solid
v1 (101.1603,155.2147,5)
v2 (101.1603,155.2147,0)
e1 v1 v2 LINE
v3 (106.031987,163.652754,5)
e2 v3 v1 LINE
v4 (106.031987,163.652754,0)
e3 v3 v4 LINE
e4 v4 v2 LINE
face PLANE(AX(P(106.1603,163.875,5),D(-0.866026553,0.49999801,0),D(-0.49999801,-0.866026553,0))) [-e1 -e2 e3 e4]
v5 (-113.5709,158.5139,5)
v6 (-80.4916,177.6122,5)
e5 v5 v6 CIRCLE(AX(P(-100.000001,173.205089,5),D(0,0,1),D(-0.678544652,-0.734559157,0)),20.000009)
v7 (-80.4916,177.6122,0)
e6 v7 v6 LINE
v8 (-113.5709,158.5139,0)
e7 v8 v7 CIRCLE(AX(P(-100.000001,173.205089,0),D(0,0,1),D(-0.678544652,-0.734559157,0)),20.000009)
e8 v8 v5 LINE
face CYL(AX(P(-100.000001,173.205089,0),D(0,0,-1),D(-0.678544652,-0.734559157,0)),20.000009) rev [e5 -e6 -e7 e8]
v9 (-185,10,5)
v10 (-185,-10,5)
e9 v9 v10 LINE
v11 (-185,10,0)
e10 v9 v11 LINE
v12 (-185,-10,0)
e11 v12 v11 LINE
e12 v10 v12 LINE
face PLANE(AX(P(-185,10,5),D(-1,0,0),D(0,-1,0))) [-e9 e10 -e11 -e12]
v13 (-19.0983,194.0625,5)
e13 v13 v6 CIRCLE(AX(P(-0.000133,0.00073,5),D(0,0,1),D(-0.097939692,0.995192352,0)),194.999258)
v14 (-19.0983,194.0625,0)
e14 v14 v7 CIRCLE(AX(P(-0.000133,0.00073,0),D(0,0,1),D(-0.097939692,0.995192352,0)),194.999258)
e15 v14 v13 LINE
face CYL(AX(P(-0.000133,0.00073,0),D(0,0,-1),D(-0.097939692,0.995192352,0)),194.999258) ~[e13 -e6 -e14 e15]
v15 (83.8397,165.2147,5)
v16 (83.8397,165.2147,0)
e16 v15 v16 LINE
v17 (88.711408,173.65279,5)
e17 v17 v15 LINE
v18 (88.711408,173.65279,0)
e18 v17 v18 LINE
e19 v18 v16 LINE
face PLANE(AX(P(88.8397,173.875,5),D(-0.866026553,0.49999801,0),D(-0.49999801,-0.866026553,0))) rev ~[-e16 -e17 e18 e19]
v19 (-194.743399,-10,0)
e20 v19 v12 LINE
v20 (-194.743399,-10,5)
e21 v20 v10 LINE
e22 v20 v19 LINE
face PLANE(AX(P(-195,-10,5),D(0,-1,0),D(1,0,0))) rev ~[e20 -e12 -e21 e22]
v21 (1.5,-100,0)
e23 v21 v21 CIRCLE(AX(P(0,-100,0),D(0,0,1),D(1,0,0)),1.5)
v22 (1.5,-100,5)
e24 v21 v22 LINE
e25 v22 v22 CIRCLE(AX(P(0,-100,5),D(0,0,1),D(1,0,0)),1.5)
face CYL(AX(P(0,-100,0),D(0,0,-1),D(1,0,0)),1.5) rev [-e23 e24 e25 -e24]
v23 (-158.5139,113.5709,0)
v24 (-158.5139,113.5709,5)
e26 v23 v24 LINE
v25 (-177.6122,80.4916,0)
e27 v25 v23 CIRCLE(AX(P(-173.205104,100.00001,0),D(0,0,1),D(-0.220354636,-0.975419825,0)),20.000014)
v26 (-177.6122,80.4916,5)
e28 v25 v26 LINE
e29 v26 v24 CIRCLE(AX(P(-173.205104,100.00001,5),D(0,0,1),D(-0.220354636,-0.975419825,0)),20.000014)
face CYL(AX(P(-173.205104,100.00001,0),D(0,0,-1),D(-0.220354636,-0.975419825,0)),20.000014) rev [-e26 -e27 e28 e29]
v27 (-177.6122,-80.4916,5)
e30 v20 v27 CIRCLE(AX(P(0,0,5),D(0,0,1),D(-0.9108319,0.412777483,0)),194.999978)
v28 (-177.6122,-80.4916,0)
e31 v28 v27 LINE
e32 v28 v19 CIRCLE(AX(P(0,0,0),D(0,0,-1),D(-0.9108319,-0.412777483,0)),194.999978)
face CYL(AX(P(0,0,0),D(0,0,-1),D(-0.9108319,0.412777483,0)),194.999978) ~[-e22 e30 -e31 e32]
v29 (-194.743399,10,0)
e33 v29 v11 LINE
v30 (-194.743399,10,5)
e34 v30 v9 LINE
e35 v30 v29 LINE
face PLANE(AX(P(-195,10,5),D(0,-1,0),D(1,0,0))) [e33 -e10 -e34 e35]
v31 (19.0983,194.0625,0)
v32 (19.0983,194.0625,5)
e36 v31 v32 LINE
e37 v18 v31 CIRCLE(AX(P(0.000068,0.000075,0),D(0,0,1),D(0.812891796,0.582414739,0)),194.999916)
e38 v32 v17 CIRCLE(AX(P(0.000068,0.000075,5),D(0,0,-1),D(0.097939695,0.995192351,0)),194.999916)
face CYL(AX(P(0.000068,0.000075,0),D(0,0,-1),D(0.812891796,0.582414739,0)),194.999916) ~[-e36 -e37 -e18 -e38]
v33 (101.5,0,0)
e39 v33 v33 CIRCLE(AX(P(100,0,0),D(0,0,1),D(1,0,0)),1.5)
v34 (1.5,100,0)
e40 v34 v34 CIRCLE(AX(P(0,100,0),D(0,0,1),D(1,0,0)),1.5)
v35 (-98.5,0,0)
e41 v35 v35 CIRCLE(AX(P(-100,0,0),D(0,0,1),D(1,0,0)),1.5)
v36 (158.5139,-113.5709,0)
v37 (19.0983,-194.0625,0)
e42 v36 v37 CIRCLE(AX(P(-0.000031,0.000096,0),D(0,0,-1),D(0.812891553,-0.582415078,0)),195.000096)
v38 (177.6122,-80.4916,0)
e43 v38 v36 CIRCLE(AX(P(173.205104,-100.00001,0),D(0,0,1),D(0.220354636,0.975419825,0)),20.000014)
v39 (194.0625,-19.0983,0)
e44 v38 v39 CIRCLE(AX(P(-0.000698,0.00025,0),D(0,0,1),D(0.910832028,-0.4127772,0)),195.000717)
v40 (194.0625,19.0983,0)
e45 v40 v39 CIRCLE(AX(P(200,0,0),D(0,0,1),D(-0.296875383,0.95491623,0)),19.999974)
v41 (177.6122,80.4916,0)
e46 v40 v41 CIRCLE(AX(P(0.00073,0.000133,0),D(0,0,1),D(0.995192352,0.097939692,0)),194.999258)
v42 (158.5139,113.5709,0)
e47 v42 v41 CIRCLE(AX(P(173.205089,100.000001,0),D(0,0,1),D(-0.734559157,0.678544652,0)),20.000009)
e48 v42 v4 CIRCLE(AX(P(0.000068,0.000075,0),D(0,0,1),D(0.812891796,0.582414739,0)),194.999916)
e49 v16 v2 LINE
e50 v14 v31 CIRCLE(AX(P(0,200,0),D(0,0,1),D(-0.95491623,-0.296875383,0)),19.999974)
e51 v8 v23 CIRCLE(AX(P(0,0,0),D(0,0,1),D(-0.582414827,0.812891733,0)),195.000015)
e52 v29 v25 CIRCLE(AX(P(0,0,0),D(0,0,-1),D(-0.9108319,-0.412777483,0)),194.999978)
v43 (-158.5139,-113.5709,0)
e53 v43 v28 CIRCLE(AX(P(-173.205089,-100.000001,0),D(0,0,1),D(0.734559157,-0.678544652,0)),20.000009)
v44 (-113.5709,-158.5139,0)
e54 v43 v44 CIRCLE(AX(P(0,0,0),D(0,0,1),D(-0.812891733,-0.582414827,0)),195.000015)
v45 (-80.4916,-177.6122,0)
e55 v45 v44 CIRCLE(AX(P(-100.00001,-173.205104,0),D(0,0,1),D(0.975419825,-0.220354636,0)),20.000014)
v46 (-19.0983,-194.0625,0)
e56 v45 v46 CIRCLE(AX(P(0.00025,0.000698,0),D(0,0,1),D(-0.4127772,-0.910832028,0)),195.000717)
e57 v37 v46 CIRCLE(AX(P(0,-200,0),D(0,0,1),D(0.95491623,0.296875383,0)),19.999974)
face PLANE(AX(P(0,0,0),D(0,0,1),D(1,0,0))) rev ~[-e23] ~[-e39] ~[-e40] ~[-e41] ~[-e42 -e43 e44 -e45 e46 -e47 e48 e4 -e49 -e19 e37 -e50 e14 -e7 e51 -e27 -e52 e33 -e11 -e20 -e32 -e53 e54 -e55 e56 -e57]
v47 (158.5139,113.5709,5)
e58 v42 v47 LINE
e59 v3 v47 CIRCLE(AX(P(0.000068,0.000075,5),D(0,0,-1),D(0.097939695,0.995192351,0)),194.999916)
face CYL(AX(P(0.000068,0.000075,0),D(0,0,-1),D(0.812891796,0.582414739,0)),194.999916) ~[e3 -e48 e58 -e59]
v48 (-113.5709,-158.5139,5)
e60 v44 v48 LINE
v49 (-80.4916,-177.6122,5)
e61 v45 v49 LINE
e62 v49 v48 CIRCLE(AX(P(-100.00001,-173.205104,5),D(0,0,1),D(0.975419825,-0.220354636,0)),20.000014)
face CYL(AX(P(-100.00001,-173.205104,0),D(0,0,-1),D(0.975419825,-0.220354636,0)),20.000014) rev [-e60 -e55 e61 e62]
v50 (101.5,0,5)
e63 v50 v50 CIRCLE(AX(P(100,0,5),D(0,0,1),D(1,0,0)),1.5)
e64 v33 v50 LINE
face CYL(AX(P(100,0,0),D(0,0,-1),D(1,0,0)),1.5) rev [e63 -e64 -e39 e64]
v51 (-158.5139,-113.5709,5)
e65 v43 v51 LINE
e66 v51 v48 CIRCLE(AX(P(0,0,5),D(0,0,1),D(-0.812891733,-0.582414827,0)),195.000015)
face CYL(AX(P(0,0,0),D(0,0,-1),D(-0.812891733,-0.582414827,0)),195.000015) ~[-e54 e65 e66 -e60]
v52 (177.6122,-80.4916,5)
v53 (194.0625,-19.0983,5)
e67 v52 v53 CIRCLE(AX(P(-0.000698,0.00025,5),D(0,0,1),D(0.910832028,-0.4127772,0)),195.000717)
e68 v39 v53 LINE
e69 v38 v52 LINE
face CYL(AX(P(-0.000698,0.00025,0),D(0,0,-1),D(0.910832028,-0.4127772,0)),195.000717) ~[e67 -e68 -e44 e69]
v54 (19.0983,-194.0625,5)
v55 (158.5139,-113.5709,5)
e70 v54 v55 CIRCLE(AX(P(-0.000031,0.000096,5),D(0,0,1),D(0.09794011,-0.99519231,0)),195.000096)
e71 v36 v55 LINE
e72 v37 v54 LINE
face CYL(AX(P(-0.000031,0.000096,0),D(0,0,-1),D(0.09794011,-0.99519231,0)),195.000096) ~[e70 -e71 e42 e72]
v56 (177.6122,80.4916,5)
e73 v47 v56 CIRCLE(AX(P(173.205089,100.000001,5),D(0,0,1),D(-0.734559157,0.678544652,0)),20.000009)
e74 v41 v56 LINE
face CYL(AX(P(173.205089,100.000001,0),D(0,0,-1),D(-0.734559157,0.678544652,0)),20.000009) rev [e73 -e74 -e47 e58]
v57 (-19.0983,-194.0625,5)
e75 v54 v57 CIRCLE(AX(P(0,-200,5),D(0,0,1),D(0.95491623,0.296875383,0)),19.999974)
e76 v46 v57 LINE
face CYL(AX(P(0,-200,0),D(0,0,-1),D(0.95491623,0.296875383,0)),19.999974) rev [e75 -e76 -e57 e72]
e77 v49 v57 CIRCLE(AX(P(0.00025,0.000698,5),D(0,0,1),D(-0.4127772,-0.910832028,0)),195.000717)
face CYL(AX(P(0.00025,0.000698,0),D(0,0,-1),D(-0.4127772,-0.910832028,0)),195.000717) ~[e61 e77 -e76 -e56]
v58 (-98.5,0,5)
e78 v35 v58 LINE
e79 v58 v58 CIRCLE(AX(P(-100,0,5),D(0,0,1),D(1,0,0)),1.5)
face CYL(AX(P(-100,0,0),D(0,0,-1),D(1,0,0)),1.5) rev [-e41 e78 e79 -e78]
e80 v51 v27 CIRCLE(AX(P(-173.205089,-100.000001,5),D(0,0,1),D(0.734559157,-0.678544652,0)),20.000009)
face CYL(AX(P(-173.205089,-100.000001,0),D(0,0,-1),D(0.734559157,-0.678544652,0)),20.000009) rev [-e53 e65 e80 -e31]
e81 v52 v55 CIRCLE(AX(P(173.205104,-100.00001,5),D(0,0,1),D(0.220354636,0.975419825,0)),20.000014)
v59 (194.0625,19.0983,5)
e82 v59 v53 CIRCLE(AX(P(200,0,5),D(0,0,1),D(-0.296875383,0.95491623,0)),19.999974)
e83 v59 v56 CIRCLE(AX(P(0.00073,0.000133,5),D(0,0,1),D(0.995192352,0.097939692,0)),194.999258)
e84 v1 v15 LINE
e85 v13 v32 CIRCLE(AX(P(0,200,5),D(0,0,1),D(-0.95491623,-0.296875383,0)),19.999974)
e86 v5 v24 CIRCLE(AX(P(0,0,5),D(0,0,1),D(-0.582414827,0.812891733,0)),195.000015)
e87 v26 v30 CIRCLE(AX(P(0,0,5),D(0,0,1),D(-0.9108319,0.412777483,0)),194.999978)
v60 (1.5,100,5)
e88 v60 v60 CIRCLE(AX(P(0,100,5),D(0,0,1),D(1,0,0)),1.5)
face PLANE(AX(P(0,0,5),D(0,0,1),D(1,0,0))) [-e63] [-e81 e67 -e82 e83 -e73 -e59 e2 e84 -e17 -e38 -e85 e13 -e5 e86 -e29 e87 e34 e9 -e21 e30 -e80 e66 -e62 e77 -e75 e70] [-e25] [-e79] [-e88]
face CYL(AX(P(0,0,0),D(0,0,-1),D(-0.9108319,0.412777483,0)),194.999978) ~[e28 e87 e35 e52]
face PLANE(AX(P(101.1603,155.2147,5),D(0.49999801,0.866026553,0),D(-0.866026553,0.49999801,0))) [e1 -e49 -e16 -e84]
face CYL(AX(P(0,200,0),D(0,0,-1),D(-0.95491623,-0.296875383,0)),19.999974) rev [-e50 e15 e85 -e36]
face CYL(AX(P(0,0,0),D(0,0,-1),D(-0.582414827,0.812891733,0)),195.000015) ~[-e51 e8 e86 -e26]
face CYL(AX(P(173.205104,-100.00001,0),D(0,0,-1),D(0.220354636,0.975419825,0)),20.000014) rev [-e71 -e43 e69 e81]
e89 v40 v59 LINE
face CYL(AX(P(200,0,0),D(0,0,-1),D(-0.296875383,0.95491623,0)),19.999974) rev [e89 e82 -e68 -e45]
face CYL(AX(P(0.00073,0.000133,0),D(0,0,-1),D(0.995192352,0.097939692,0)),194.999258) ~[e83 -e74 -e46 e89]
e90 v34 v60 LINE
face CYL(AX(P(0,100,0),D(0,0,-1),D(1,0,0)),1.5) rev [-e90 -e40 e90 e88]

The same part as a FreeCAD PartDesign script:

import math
import FreeCAD as App
import Part
import Sketcher
from FreeCAD import Vector
Q = App.Units.Quantity

doc = App.newDocument("Part")
body = doc.addObject("PartDesign::Body", "Body")

sketch1 = body.newObject("Sketcher::SketchObject", "Sketch")
sketch1.AttachmentSupport = (doc.getObject("XY_Plane"), [""])
sketch1.MapMode = "FlatFace"
sketch1.addGeometry(Part.ArcOfCircle(Part.Circle(Vector(0, 200, 0), Vector(0, 0, 1), 20), math.radians(-163), math.radians(-17)), False)
sketch1.addGeometry(Part.ArcOfCircle(Part.Circle(Vector(0, 0, 0), Vector(0, 0, 1), 195), math.radians(95.62), math.radians(114.38)), False)
sketch1.addGeometry(Part.ArcOfCircle(Part.Circle(Vector(-100, 173.2, 0), Vector(0, 0, 1), 20), math.radians(-133), math.radians(13)), False)
sketch1.addGeometry(Part.ArcOfCircle(Part.Circle(Vector(0, 0, 0), Vector(0, 0, 1), 195), math.radians(125.62), math.radians(144.38)), False)
sketch1.addGeometry(Part.ArcOfCircle(Part.Circle(Vector(-173.2, 100, 0), Vector(0, 0, 1), 20), math.radians(-103), math.radians(43)), False)
sketch1.addGeometry(Part.ArcOfCircle(Part.Circle(Vector(0, 0, 0), Vector(0, 0, 1), 195), math.radians(156), math.radians(204)), False)
sketch1.addGeometry(Part.ArcOfCircle(Part.Circle(Vector(-173.2, -100, 0), Vector(0, 0, 1), 20), math.radians(-43), math.radians(103)), False)
sketch1.addGeometry(Part.ArcOfCircle(Part.Circle(Vector(0, 0, 0), Vector(0, 0, 1), 195), math.radians(-144.38), math.radians(-125.62)), False)
sketch1.addGeometry(Part.ArcOfCircle(Part.Circle(Vector(-100, -173.2, 0), Vector(0, 0, 1), 20), math.radians(-13), math.radians(133)), False)
sketch1.addGeometry(Part.ArcOfCircle(Part.Circle(Vector(0, 0, 0), Vector(0, 0, 1), 195), math.radians(-114.38), math.radians(-95.62)), False)
sketch1.addGeometry(Part.ArcOfCircle(Part.Circle(Vector(0, -200, 0), Vector(0, 0, 1), 20), math.radians(17), math.radians(163)), False)
sketch1.addGeometry(Part.ArcOfCircle(Part.Circle(Vector(0, 0, 0), Vector(0, 0, 1), 195), math.radians(-84), math.radians(-36)), False)
sketch1.addGeometry(Part.ArcOfCircle(Part.Circle(Vector(173.2, -100, 0), Vector(0, 0, 1), 20), math.radians(77), math.radians(223)), False)
sketch1.addGeometry(Part.ArcOfCircle(Part.Circle(Vector(0, 0, 0), Vector(0, 0, 1), 195), math.radians(-24.38), math.radians(-5.62)), False)
sketch1.addGeometry(Part.ArcOfCircle(Part.Circle(Vector(200, 0, 0), Vector(0, 0, 1), 20), math.radians(107), math.radians(253)), False)
sketch1.addGeometry(Part.ArcOfCircle(Part.Circle(Vector(0, 0, 0), Vector(0, 0, 1), 195), math.radians(5.62), math.radians(24.38)), False)
sketch1.addGeometry(Part.ArcOfCircle(Part.Circle(Vector(173.2, 100, 0), Vector(0, 0, 1), 20), math.radians(137), math.radians(283)), False)
sketch1.addGeometry(Part.ArcOfCircle(Part.Circle(Vector(0, 0, 0), Vector(0, 0, 1), 195), math.radians(36), math.radians(84)), False)
sketch1.addGeometry(Part.Circle(Vector(-100, 0, 0), Vector(0, 0, 1), 1.5), False)
sketch1.addGeometry(Part.Circle(Vector(0, -100, 0), Vector(0, 0, 1), 1.5), False)
sketch1.addGeometry(Part.Circle(Vector(100, 0, 0), Vector(0, 0, 1), 1.5), False)
sketch1.addGeometry(Part.Circle(Vector(0, 100, 0), Vector(0, 0, 1), 1.5), False)
sketch1.addConstraint(Sketcher.Constraint("Coincident", 0, 1, 1, 1))
sketch1.addConstraint(Sketcher.Constraint("Coincident", 1, 2, 2, 2))
sketch1.addConstraint(Sketcher.Constraint("Coincident", 2, 1, 3, 1))
sketch1.addConstraint(Sketcher.Constraint("Coincident", 3, 2, 4, 2))
sketch1.addConstraint(Sketcher.Constraint("Coincident", 4, 1, 5, 1))
sketch1.addConstraint(Sketcher.Constraint("Coincident", 5, 2, 6, 2))
sketch1.addConstraint(Sketcher.Constraint("Coincident", 6, 1, 7, 1))
sketch1.addConstraint(Sketcher.Constraint("Coincident", 7, 2, 8, 2))
sketch1.addConstraint(Sketcher.Constraint("Coincident", 8, 1, 9, 1))
sketch1.addConstraint(Sketcher.Constraint("Coincident", 9, 2, 10, 2))
sketch1.addConstraint(Sketcher.Constraint("Coincident", 10, 1, 11, 1))
sketch1.addConstraint(Sketcher.Constraint("Coincident", 11, 2, 12, 2))
sketch1.addConstraint(Sketcher.Constraint("Coincident", 12, 1, 13, 1))
sketch1.addConstraint(Sketcher.Constraint("Coincident", 13, 2, 14, 2))
sketch1.addConstraint(Sketcher.Constraint("Coincident", 14, 1, 15, 1))
sketch1.addConstraint(Sketcher.Constraint("Coincident", 15, 2, 16, 2))
sketch1.addConstraint(Sketcher.Constraint("Coincident", 16, 1, 17, 1))
sketch1.addConstraint(Sketcher.Constraint("Coincident", 17, 2, 0, 2))
sketch1.addConstraint(Sketcher.Constraint("Coincident", 1, 3, -1, 1))
sketch1.addConstraint(Sketcher.Constraint("Coincident", 3, 3, -1, 1))
sketch1.addConstraint(Sketcher.Constraint("Coincident", 5, 3, -1, 1))
sketch1.addConstraint(Sketcher.Constraint("Coincident", 7, 3, -1, 1))
sketch1.addConstraint(Sketcher.Constraint("Coincident", 9, 3, -1, 1))
sketch1.addConstraint(Sketcher.Constraint("Coincident", 11, 3, -1, 1))
sketch1.addConstraint(Sketcher.Constraint("Coincident", 13, 3, -1, 1))
sketch1.addConstraint(Sketcher.Constraint("Coincident", 15, 3, -1, 1))
sketch1.addConstraint(Sketcher.Constraint("Coincident", 17, 3, -1, 1))
sketch1.addConstraint(Sketcher.Constraint("Equal", 0, 2))
sketch1.addConstraint(Sketcher.Constraint("Equal", 1, 3))
sketch1.addConstraint(Sketcher.Constraint("Equal", 2, 4))
sketch1.addConstraint(Sketcher.Constraint("Equal", 3, 5))
sketch1.addConstraint(Sketcher.Constraint("Equal", 4, 6))
sketch1.addConstraint(Sketcher.Constraint("Equal", 5, 7))
sketch1.addConstraint(Sketcher.Constraint("Equal", 6, 8))
sketch1.addConstraint(Sketcher.Constraint("Equal", 7, 9))
sketch1.addConstraint(Sketcher.Constraint("Equal", 8, 10))
sketch1.addConstraint(Sketcher.Constraint("Equal", 9, 11))
sketch1.addConstraint(Sketcher.Constraint("Equal", 10, 12))
sketch1.addConstraint(Sketcher.Constraint("Equal", 11, 13))
sketch1.addConstraint(Sketcher.Constraint("Equal", 12, 14))
sketch1.addConstraint(Sketcher.Constraint("Equal", 13, 15))
sketch1.addConstraint(Sketcher.Constraint("Equal", 14, 16))
sketch1.addConstraint(Sketcher.Constraint("Equal", 15, 17))
sketch1.addConstraint(Sketcher.Constraint("Equal", 18, 19))
sketch1.addConstraint(Sketcher.Constraint("Equal", 19, 20))
sketch1.addConstraint(Sketcher.Constraint("Equal", 20, 21))
sketch1.addConstraint(Sketcher.Constraint("Symmetric", 0, 3, 10, 3, -1, 1))
sketch1.addConstraint(Sketcher.Constraint("Symmetric", 4, 3, 12, 3, -1, 1))
sketch1.addConstraint(Sketcher.Constraint("Symmetric", 6, 3, 16, 3, -1, 1))
sketch1.addConstraint(Sketcher.Constraint("Symmetric", 18, 3, 20, 3, -1, 1))
sketch1.addConstraint(Sketcher.Constraint("Symmetric", 19, 3, 21, 3, -1, 1))
sketch1.addConstraint(Sketcher.Constraint("Symmetric", 6, 3, 12, 3, -2))
sketch1.addConstraint(Sketcher.Constraint("Symmetric", 2, 3, 8, 3, -1))
sketch1.addConstraint(Sketcher.Constraint("PointOnObject", 0, 3, -2))
sketch1.addConstraint(Sketcher.Constraint("PointOnObject", 14, 3, -1))
sketch1.addConstraint(Sketcher.Constraint("PointOnObject", 18, 3, -1))
sketch1.addConstraint(Sketcher.Constraint("PointOnObject", 19, 3, -2))
sketch1.addConstraint(Sketcher.Constraint("Horizontal", 12, 3, 19, 3))
sketch1.addConstraint(Sketcher.Constraint("Vertical", 8, 3, 18, 3))
sketch1.addConstraint(Sketcher.Constraint("Diameter", 18, 3.0))
sketch1.addConstraint(Sketcher.Constraint("Radius", 0, 20.0))
sketch1.addConstraint(Sketcher.Constraint("Radius", 1, 195.0))
sketch1.addConstraint(Sketcher.Constraint("DistanceY", -1, 1, 0, 3, 200.0))
sketch1.addConstraint(Sketcher.Constraint("DistanceX", 2, 3, -1, 1, 100.0))
sketch1.addConstraint(Sketcher.Constraint("DistanceY", -1, 1, 4, 3, 100.0))
sketch1.addConstraint(Sketcher.Constraint("DistanceX", -1, 1, 14, 3, 200.0))
sketch1.addConstraint(Sketcher.Constraint("DistanceX", 8, 1, 10, 1, 99.59))
sketch1.addConstraint(Sketcher.Constraint("DistanceY", 12, 1, 14, 1, 99.59))
pad1 = body.newObject("PartDesign::Pad", "Pad")
pad1.Profile = sketch1
pad1.Length = 5

sketch2 = body.newObject("Sketcher::SketchObject", "Sketch001")
sketch2.AttachmentSupport = (doc.getObject("XY_Plane"), [""])
sketch2.MapMode = "FlatFace"
sketch2.AttachmentOffset = App.Placement(Vector(0, 0, 5), App.Rotation())
sketch2.addGeometry(Part.LineSegment(Vector(-195, 10, 0), Vector(-195, -10, 0)), False)
sketch2.addGeometry(Part.LineSegment(Vector(-195, -10, 0), Vector(-185, -10, 0)), False)
sketch2.addGeometry(Part.LineSegment(Vector(-185, -10, 0), Vector(-185, 10, 0)), False)
sketch2.addGeometry(Part.LineSegment(Vector(-185, 10, 0), Vector(-195, 10, 0)), False)
sketch2.addGeometry(Part.LineSegment(Vector(106, 164, 0), Vector(89, 174, 0)), False)
sketch2.addGeometry(Part.LineSegment(Vector(89, 174, 0), Vector(84, 165, 0)), False)
sketch2.addGeometry(Part.LineSegment(Vector(84, 165, 0), Vector(101, 155, 0)), False)
sketch2.addGeometry(Part.LineSegment(Vector(101, 155, 0), Vector(106, 164, 0)), False)
sketch2.addConstraint(Sketcher.Constraint("Coincident", 0, 2, 1, 1))
sketch2.addConstraint(Sketcher.Constraint("Coincident", 1, 2, 2, 1))
sketch2.addConstraint(Sketcher.Constraint("Coincident", 2, 2, 3, 1))
sketch2.addConstraint(Sketcher.Constraint("Coincident", 3, 2, 0, 1))
sketch2.addConstraint(Sketcher.Constraint("Coincident", 4, 2, 5, 1))
sketch2.addConstraint(Sketcher.Constraint("Coincident", 5, 2, 6, 1))
sketch2.addConstraint(Sketcher.Constraint("Coincident", 6, 2, 7, 1))
sketch2.addConstraint(Sketcher.Constraint("Coincident", 7, 2, 4, 1))
sketch2.addConstraint(Sketcher.Constraint("Vertical", 0))
sketch2.addConstraint(Sketcher.Constraint("Horizontal", 1))
sketch2.addConstraint(Sketcher.Constraint("Vertical", 2))
sketch2.addConstraint(Sketcher.Constraint("Horizontal", 3))
sketch2.addConstraint(Sketcher.Constraint("Perpendicular", 4, 5))
sketch2.addConstraint(Sketcher.Constraint("Perpendicular", 5, 6))
sketch2.addConstraint(Sketcher.Constraint("Perpendicular", 6, 7))
sketch2.addConstraint(Sketcher.Constraint("DistanceX", 1, 1, 1, 2, 10.0))
sketch2.addConstraint(Sketcher.Constraint("Distance", 5, 10.0))
sketch2.addConstraint(Sketcher.Constraint("DistanceY", 0, 2, -1, 1, 10.0))
sketch2.addConstraint(Sketcher.Constraint("DistanceY", -1, 1, 2, 2, 10.0))
sketch2.addConstraint(Sketcher.Constraint("DistanceY", 6, 2, 5, 2, 10.0))
sketch2.addConstraint(Sketcher.Constraint("Angle", 4, Q("150.0001 deg")))
sketch2.addConstraint(Sketcher.Constraint("DistanceX", 0, 2, -1, 1, 195.0))
sketch2.addConstraint(Sketcher.Constraint("DistanceY", -1, 1, 4, 2, 173.875))
sketch2.addConstraint(Sketcher.Constraint("DistanceX", -1, 1, 4, 2, 88.8397))
pocket1 = body.newObject("PartDesign::Pocket", "Pocket")
pocket1.Profile = sketch2
pocket1.Length = 5

doc.recompute()
